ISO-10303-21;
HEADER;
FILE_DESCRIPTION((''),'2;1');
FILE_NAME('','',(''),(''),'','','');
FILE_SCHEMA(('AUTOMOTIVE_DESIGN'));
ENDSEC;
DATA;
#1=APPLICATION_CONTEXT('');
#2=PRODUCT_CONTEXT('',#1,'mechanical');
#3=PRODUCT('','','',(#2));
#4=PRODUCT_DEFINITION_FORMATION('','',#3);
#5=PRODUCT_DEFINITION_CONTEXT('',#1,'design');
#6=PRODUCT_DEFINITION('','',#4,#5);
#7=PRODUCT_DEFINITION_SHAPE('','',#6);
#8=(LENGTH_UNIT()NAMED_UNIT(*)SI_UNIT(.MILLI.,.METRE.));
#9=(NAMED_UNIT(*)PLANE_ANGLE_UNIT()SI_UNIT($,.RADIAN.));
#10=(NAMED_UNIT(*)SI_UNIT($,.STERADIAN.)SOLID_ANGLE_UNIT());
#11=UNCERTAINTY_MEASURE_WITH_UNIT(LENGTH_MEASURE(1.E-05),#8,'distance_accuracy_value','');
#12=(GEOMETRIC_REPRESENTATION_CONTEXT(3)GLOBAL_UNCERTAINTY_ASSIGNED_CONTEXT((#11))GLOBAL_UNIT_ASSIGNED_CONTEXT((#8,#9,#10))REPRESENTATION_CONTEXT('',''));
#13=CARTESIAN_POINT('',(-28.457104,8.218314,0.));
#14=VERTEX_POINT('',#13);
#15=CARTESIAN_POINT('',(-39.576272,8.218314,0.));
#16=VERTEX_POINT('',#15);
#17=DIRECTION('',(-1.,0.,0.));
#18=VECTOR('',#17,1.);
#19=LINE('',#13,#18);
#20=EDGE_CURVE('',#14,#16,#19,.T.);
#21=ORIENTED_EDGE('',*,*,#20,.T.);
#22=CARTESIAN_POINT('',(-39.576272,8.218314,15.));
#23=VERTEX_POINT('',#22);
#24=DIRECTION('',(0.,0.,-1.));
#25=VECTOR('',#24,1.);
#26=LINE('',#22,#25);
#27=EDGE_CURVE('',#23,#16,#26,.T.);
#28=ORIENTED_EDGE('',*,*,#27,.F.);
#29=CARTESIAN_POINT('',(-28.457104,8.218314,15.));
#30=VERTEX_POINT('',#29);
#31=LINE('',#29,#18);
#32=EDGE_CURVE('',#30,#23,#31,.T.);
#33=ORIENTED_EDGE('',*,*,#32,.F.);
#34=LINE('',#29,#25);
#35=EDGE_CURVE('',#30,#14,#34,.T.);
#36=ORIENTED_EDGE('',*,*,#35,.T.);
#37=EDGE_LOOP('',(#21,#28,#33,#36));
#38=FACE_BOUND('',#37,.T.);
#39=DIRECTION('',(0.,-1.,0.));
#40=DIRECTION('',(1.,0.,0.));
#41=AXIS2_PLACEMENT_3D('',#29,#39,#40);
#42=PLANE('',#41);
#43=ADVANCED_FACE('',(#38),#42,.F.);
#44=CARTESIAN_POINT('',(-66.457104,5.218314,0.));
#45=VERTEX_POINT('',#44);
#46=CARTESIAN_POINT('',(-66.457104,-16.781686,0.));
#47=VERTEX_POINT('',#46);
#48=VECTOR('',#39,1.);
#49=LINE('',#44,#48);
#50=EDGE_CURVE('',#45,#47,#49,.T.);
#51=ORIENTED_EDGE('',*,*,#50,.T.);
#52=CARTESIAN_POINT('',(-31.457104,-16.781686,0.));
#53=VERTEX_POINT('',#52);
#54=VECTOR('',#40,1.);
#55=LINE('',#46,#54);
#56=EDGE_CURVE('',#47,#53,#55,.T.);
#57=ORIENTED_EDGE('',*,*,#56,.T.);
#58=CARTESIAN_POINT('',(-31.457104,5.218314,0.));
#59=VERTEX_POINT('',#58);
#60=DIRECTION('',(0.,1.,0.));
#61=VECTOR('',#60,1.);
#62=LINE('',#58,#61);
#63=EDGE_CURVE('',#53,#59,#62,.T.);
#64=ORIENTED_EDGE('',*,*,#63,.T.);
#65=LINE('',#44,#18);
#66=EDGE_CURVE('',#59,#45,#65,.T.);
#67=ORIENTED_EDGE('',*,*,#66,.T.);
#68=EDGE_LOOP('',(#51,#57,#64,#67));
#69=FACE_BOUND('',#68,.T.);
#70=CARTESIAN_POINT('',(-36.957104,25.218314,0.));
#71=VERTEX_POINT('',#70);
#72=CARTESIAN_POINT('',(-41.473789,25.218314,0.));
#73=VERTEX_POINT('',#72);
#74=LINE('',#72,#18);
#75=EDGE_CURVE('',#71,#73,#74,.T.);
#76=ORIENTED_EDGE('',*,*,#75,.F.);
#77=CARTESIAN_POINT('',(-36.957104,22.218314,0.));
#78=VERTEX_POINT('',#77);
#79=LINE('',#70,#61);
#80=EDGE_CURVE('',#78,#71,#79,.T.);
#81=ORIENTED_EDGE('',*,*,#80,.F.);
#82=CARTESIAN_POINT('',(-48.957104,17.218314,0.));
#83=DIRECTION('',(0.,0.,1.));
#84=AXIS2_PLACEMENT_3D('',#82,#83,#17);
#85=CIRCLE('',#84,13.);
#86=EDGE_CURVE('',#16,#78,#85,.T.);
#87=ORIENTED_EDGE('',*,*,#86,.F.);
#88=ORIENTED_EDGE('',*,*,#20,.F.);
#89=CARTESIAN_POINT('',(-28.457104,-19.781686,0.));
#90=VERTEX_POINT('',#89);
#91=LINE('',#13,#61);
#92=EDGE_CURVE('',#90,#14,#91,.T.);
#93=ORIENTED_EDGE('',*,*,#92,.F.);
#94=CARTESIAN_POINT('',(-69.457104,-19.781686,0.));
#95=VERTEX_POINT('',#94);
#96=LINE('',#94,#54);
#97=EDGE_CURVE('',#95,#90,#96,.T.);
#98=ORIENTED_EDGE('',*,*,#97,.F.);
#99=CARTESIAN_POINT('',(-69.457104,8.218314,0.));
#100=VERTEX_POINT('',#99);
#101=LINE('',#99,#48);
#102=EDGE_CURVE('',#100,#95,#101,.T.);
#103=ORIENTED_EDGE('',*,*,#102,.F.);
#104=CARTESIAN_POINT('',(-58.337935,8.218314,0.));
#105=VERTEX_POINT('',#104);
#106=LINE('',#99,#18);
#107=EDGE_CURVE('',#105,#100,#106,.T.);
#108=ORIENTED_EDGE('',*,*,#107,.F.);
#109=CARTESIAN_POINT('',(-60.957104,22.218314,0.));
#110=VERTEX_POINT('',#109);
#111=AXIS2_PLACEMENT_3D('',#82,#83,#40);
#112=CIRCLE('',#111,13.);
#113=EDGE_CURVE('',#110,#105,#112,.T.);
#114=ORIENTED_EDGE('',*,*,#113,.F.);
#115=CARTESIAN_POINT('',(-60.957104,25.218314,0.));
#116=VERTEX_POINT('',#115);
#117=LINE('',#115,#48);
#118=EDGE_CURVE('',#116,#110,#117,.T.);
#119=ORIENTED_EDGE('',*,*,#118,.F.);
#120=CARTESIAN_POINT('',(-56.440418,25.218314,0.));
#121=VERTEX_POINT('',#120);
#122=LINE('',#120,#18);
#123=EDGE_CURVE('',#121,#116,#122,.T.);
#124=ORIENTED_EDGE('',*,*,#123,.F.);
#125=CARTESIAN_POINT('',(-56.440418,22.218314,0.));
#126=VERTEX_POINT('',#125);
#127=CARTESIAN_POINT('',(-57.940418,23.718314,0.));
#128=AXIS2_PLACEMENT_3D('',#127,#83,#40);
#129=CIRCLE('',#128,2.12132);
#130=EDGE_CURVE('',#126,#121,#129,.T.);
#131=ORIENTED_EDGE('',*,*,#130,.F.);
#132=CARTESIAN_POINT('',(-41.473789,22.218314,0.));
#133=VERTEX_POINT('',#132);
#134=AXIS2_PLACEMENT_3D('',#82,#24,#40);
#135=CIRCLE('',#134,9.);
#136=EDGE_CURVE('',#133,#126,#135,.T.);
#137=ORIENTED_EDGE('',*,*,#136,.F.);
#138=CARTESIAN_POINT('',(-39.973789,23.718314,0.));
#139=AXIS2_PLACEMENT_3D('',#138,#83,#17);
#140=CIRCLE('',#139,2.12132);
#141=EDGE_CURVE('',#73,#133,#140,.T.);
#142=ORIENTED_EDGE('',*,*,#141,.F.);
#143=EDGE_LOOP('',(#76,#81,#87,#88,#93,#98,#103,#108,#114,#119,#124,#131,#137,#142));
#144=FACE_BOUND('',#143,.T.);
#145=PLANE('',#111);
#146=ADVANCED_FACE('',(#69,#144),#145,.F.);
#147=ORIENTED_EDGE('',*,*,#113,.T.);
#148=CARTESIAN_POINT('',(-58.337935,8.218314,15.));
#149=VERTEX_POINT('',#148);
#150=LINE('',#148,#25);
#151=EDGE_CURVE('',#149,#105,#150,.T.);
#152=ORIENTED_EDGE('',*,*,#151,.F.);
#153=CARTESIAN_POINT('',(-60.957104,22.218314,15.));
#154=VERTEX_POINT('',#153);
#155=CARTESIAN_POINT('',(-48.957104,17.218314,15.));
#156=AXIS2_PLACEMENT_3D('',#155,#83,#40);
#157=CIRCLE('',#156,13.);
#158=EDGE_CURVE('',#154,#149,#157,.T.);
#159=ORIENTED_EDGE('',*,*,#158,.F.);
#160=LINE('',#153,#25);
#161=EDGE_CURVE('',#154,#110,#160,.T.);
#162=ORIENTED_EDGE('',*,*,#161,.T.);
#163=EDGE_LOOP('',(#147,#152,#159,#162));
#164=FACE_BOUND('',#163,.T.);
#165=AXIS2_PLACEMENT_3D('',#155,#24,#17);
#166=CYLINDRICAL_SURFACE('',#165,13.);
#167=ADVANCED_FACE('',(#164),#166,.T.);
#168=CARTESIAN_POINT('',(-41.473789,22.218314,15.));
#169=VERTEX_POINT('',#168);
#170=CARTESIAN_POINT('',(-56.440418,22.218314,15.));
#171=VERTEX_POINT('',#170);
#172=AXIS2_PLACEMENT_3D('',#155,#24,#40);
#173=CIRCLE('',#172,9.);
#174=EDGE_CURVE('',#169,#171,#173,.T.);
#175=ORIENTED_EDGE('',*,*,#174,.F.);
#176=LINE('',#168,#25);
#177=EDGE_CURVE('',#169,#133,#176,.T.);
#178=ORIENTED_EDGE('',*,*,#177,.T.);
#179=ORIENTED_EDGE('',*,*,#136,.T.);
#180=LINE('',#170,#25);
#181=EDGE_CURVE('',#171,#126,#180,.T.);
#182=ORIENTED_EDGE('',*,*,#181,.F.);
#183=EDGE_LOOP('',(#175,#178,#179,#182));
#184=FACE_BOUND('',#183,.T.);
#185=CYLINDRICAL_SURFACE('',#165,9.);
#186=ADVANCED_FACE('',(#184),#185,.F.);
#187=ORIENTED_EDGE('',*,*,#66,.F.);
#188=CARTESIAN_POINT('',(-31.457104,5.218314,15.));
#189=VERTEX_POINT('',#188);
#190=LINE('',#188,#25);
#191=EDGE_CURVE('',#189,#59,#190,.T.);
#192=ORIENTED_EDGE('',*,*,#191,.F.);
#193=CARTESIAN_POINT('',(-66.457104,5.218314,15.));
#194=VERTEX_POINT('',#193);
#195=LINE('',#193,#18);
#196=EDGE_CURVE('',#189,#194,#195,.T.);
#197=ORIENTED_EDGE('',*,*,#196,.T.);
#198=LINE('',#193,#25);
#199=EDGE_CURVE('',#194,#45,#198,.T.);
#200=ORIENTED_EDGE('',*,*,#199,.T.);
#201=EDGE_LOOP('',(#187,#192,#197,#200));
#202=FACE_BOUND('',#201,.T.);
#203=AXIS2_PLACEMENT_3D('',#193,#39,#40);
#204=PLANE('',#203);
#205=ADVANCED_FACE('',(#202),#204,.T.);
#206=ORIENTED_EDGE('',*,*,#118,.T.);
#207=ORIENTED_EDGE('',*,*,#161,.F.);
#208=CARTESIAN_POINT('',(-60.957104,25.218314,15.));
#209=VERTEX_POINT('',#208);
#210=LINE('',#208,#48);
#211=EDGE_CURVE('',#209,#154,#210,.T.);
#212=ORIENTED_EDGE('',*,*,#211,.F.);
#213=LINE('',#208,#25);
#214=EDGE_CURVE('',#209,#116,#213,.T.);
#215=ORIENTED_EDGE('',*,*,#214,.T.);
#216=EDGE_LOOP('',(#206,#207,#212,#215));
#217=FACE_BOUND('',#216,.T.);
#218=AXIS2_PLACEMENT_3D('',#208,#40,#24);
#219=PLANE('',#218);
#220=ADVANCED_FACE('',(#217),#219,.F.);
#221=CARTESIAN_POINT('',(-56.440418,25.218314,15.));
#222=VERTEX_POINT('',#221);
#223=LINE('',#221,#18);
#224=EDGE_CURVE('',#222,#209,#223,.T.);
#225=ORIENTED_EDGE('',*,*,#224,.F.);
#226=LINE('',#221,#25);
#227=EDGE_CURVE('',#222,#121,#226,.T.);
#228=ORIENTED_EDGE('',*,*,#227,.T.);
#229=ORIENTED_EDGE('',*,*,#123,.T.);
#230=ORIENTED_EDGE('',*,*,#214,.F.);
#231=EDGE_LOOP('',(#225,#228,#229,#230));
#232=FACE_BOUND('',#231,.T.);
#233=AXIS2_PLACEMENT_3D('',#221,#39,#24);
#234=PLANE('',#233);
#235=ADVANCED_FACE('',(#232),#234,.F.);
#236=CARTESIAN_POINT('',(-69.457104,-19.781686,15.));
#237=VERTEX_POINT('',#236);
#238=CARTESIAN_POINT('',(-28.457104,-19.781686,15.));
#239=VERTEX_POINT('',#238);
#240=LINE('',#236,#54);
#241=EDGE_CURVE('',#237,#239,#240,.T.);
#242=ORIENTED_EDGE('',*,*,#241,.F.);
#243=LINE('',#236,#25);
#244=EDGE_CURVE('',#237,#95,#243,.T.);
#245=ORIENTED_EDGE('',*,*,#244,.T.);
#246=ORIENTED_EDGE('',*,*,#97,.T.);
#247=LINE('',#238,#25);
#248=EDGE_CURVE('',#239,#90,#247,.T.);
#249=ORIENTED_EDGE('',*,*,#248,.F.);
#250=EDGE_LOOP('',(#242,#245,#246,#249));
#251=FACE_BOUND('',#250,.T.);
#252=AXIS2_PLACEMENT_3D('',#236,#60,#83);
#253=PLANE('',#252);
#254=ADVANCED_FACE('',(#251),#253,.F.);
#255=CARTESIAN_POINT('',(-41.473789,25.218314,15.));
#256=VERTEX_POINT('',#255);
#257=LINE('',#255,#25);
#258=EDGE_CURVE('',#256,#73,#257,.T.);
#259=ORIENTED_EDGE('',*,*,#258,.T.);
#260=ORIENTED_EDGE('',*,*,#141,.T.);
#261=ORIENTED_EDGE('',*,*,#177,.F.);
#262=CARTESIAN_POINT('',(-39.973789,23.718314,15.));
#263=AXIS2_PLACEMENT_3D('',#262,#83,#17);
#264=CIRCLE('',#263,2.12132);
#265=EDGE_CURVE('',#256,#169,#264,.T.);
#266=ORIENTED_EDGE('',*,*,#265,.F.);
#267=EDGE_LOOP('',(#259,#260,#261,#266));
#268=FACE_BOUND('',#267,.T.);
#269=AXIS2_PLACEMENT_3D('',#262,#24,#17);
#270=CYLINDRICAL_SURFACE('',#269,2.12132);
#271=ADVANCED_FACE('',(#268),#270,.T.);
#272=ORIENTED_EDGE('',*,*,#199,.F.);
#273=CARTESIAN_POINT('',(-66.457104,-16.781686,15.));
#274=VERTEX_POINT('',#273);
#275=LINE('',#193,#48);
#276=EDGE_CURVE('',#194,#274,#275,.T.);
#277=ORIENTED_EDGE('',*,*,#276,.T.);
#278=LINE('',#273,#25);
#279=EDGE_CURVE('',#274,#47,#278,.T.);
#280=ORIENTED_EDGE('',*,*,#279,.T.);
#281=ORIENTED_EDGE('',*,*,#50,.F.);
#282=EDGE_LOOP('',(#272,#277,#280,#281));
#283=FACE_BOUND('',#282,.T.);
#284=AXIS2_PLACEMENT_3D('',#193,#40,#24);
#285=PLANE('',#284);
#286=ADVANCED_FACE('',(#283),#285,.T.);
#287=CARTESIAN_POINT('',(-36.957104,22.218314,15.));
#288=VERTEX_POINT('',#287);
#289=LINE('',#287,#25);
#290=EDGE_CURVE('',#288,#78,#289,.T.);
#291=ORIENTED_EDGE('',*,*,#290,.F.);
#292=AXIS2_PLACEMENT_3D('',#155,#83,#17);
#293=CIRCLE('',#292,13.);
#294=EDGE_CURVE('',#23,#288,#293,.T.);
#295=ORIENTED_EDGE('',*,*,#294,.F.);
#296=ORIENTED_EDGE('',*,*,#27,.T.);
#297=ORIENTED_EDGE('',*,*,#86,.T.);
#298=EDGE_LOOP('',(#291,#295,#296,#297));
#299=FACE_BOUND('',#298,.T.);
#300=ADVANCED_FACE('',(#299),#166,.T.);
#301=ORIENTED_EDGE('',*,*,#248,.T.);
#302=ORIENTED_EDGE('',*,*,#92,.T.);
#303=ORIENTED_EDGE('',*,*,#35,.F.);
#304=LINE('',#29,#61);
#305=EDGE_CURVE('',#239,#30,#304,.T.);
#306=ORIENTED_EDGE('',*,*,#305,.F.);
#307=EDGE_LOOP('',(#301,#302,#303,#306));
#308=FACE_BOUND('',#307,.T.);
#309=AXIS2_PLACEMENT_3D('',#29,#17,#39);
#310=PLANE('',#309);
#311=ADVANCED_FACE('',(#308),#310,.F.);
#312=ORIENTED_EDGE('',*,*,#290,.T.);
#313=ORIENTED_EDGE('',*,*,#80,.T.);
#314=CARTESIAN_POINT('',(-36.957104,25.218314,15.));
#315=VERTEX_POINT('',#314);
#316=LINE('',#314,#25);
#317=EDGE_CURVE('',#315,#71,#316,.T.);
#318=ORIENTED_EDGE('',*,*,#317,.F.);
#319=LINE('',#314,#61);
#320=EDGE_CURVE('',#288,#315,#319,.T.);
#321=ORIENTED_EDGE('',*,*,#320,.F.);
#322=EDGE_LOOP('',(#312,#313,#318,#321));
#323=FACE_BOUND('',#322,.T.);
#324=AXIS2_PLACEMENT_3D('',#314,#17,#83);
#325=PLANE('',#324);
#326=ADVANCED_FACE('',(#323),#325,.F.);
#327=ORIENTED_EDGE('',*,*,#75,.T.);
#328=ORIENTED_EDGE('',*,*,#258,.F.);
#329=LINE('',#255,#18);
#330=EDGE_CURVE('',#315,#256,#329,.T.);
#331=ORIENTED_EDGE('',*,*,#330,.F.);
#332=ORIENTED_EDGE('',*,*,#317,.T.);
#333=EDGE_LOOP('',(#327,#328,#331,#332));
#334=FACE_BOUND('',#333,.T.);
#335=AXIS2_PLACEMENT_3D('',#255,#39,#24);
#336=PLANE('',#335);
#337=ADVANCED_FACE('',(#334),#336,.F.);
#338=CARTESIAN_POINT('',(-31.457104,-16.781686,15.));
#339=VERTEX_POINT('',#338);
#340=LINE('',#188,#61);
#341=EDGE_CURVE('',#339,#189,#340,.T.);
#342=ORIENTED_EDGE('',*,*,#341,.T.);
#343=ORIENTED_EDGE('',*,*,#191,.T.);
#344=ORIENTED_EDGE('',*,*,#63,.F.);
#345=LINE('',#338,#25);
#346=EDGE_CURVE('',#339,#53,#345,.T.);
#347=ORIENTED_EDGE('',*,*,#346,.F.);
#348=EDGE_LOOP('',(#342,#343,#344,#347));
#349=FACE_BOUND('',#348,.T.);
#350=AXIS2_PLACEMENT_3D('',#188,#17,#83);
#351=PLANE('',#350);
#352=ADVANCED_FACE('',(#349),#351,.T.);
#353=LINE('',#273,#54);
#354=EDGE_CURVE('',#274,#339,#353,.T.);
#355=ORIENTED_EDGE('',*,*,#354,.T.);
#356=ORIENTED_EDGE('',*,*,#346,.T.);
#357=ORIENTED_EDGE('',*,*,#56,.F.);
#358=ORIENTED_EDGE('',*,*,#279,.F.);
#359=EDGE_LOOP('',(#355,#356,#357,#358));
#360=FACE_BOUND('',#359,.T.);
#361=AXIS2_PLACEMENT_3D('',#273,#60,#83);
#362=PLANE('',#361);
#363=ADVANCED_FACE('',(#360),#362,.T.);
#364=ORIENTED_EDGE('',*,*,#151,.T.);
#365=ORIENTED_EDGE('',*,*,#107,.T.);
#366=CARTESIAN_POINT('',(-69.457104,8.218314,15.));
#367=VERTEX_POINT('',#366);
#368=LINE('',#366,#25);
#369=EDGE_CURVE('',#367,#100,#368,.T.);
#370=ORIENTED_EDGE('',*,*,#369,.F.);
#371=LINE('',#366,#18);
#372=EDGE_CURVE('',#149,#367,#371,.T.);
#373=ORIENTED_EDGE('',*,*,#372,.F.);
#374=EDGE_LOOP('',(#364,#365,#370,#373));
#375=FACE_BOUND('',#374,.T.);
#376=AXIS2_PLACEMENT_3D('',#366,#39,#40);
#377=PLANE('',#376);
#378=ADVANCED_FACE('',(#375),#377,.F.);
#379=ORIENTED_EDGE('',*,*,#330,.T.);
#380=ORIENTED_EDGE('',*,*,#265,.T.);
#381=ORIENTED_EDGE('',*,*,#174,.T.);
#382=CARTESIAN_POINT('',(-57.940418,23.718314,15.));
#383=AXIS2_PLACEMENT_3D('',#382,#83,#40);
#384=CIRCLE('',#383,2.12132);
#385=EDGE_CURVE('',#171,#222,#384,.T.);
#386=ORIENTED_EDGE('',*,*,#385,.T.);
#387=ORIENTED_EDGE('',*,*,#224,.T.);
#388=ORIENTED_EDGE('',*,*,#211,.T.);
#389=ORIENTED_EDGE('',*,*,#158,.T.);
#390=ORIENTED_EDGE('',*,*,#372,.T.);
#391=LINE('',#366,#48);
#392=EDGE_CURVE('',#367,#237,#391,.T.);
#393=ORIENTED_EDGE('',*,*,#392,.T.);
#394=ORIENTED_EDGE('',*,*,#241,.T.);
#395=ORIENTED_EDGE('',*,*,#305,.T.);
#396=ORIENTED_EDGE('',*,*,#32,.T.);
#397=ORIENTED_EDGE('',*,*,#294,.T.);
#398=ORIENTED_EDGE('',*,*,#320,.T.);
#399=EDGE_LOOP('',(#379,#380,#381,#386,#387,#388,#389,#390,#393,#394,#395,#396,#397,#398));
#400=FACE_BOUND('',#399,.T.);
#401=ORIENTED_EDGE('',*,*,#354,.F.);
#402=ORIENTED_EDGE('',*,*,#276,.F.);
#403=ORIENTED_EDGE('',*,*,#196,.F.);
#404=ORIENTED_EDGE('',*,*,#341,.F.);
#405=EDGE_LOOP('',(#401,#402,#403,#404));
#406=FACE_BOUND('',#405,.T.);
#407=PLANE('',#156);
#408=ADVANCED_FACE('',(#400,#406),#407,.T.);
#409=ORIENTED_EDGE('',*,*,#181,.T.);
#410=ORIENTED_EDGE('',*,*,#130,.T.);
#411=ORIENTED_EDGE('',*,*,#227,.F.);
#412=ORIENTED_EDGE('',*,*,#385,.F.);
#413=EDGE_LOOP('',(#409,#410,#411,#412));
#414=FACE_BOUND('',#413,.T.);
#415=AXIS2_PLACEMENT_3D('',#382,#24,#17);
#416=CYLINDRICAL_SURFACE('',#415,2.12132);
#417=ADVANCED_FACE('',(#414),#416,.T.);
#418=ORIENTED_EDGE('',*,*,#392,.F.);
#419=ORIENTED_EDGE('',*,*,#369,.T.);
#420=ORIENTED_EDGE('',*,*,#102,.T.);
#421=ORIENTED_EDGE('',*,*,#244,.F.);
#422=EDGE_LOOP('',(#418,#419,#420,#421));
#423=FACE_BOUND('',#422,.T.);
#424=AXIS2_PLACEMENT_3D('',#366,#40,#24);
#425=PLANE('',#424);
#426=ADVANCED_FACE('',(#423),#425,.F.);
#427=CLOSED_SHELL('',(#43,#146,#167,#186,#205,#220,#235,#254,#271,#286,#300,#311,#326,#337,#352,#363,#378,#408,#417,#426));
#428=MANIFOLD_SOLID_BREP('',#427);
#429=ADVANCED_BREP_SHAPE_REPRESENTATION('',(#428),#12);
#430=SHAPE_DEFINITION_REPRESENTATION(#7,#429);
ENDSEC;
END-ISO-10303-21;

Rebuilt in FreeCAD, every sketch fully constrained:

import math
import FreeCAD as App
import Part
import Sketcher

V = App.Vector

doc = App.newDocument("Part")
body = doc.addObject("PartDesign::Body", "Body")

# Sketch on XY plane
sketch1 = body.newObject("Sketcher::SketchObject", "Sketch")
sketch1.AttachmentSupport = (doc.getObject("XY_Plane"), [""])
sketch1.MapMode = "FlatFace"
sketch1.addGeometry(Part.LineSegment(V(-69.457104, 8.218314, 0), V(-69.457104, -19.781686, 0)), False)
sketch1.addGeometry(Part.LineSegment(V(-69.457104, -19.781686, 0), V(-28.457104, -19.781686, 0)), False)
sketch1.addGeometry(Part.LineSegment(V(-28.457104, -19.781686, 0), V(-28.457104, 8.218314, 0)), False)
sketch1.addGeometry(Part.LineSegment(V(-28.457104, 8.218314, 0), V(-39.576272, 8.218314, 0)), False)
sketch1.addGeometry(Part.ArcOfCircle(Part.Circle(V(-48.957104, 17.218314, 0), V(0, 0, 1), 13), math.radians(-43.813061), math.radians(22.619865)), False)
sketch1.addGeometry(Part.LineSegment(V(-36.957104, 22.218314, 0), V(-36.957104, 25.218314, 0)), False)
sketch1.addGeometry(Part.LineSegment(V(-36.957104, 25.218314, 0), V(-41.473789, 25.218314, 0)), False)
sketch1.addGeometry(Part.ArcOfCircle(Part.Circle(V(-39.973789, 23.718314, 0), V(0, 0, 1), 2.12132), math.radians(135), math.radians(225)), False)
sketch1.addGeometry(Part.ArcOfCircle(Part.Circle(V(-48.957104, 17.218314, 0), V(0, 0, 1), 9), math.radians(146.251011), math.radians(393.748989)), False)
sketch1.addGeometry(Part.ArcOfCircle(Part.Circle(V(-57.940418, 23.718314, 0), V(0, 0, 1), 2.12132), math.radians(-45), math.radians(45)), False)
sketch1.addGeometry(Part.LineSegment(V(-56.440418, 25.218314, 0), V(-60.957104, 25.218314, 0)), False)
sketch1.addGeometry(Part.LineSegment(V(-60.957104, 25.218314, 0), V(-60.957104, 22.218314, 0)), False)
sketch1.addGeometry(Part.ArcOfCircle(Part.Circle(V(-48.957104, 17.218314, 0), V(0, 0, 1), 13), math.radians(157.380135), math.radians(223.813061)), False)
sketch1.addGeometry(Part.LineSegment(V(-58.337935, 8.218314, 0), V(-69.457104, 8.218314, 0)), False)
sketch1.addGeometry(Part.LineSegment(V(-31.457104, -16.781686, 0), V(-66.457104, -16.781686, 0)), False)
sketch1.addGeometry(Part.LineSegment(V(-66.457104, -16.781686, 0), V(-66.457104, 5.218314, 0)), False)
sketch1.addGeometry(Part.LineSegment(V(-66.457104, 5.218314, 0), V(-31.457104, 5.218314, 0)), False)
sketch1.addGeometry(Part.LineSegment(V(-31.457104, 5.218314, 0), V(-31.457104, -16.781686, 0)), False)
sketch1.addConstraint(Sketcher.Constraint("Coincident", 0, 2, 1, 1))
sketch1.addConstraint(Sketcher.Constraint("Coincident", 1, 2, 2, 1))
sketch1.addConstraint(Sketcher.Constraint("Coincident", 2, 2, 3, 1))
sketch1.addConstraint(Sketcher.Constraint("Coincident", 3, 2, 4, 1))
sketch1.addConstraint(Sketcher.Constraint("Coincident", 4, 2, 5, 1))
sketch1.addConstraint(Sketcher.Constraint("Coincident", 5, 2, 6, 1))
sketch1.addConstraint(Sketcher.Constraint("Coincident", 6, 2, 7, 1))
sketch1.addConstraint(Sketcher.Constraint("Coincident", 7, 2, 8, 2))
sketch1.addConstraint(Sketcher.Constraint("Coincident", 8, 1, 9, 1))
sketch1.addConstraint(Sketcher.Constraint("Coincident", 9, 2, 10, 1))
sketch1.addConstraint(Sketcher.Constraint("Coincident", 10, 2, 11, 1))
sketch1.addConstraint(Sketcher.Constraint("Coincident", 11, 2, 12, 1))
sketch1.addConstraint(Sketcher.Constraint("Coincident", 12, 2, 13, 1))
sketch1.addConstraint(Sketcher.Constraint("Coincident", 13, 2, 0, 1))
sketch1.addConstraint(Sketcher.Constraint("Coincident", 14, 2, 15, 1))
sketch1.addConstraint(Sketcher.Constraint("Coincident", 15, 2, 16, 1))
sketch1.addConstraint(Sketcher.Constraint("Coincident", 16, 2, 17, 1))
sketch1.addConstraint(Sketcher.Constraint("Coincident", 17, 2, 14, 1))
sketch1.addConstraint(Sketcher.Constraint("Vertical", 0))
sketch1.addConstraint(Sketcher.Constraint("Horizontal", 1))
sketch1.addConstraint(Sketcher.Constraint("Vertical", 2))
sketch1.addConstraint(Sketcher.Constraint("Horizontal", 3))
sketch1.addConstraint(Sketcher.Constraint("Vertical", 5))
sketch1.addConstraint(Sketcher.Constraint("Horizontal", 6))
sketch1.addConstraint(Sketcher.Constraint("Horizontal", 10))
sketch1.addConstraint(Sketcher.Constraint("Vertical", 11))
sketch1.addConstraint(Sketcher.Constraint("Horizontal", 13))
sketch1.addConstraint(Sketcher.Constraint("Horizontal", 14))
sketch1.addConstraint(Sketcher.Constraint("Vertical", 15))
sketch1.addConstraint(Sketcher.Constraint("Horizontal", 16))
sketch1.addConstraint(Sketcher.Constraint("Vertical", 17))
sketch1.addConstraint(Sketcher.Constraint("Coincident", 8, 3, 4, 3))
sketch1.addConstraint(Sketcher.Constraint("Coincident", 12, 3, 4, 3))
sketch1.addConstraint(Sketcher.Constraint("Equal", 7, 9))
sketch1.addConstraint(Sketcher.Constraint("Equal", 4, 12))
sketch1.addConstraint(Sketcher.Constraint("Horizontal", 7, 3, 9, 3))
sketch1.addConstraint(Sketcher.Constraint("Horizontal", 4, 2, 7, 2))
sketch1.addConstraint(Sketcher.Constraint("Horizontal", 7, 2, 8, 1))
sketch1.addConstraint(Sketcher.Constraint("Horizontal", 6, 2, 9, 2))
sketch1.addConstraint(Sketcher.Constraint("Horizontal", 8, 1, 11, 2))
sketch1.addConstraint(Sketcher.Constraint("Horizontal", 3, 2, 12, 2))
sketch1.addConstraint(Sketcher.Constraint("Vertical", 6, 2, 7, 2))
sketch1.addConstraint(Sketcher.Constraint("Equal", 3, 13))
sketch1.addConstraint(Sketcher.Constraint("Radius", 4, 13.0))
sketch1.addConstraint(Sketcher.Constraint("Radius", 8, 9.0))
sketch1.addConstraint(Sketcher.Constraint("DistanceX", 1, 1, 1, 2, 41.0))
sketch1.addConstraint(Sketcher.Constraint("DistanceX", 14, 2, 14, 1, 35.0))
sketch1.addConstraint(Sketcher.Constraint("DistanceY", 0, 2, 0, 1, 28.0))
sketch1.addConstraint(Sketcher.Constraint("DistanceY", 5, 1, 5, 2, 3.0))
sketch1.addConstraint(Sketcher.Constraint("DistanceY", 15, 1, 15, 2, 22.0))
sketch1.addConstraint(Sketcher.Constraint("DistanceY", 0, 2, 4, 3, 37.0))
sketch1.addConstraint(Sketcher.Constraint("DistanceX", 4, 3, 4, 2, 12.0))
sketch1.addConstraint(Sketcher.Constraint("DistanceX", 0, 2, 14, 2, 3.0))
sketch1.addConstraint(Sketcher.Constraint("DistanceY", 0, 2, 14, 2, 3.0))
sketch1.addConstraint(Sketcher.Constraint("DistanceX", 6, 2, 7, 3, 1.5))
sketch1.addConstraint(Sketcher.Constraint("DistanceX", 7, 3, -1, 1, 39.973789))
sketch1.addConstraint(Sketcher.Constraint("DistanceY", -1, 1, 4, 3, 17.218314))
pad1 = body.newObject("PartDesign::Pad", "Pad")
pad1.Profile = sketch1
pad1.Length = 15

doc.recompute()
